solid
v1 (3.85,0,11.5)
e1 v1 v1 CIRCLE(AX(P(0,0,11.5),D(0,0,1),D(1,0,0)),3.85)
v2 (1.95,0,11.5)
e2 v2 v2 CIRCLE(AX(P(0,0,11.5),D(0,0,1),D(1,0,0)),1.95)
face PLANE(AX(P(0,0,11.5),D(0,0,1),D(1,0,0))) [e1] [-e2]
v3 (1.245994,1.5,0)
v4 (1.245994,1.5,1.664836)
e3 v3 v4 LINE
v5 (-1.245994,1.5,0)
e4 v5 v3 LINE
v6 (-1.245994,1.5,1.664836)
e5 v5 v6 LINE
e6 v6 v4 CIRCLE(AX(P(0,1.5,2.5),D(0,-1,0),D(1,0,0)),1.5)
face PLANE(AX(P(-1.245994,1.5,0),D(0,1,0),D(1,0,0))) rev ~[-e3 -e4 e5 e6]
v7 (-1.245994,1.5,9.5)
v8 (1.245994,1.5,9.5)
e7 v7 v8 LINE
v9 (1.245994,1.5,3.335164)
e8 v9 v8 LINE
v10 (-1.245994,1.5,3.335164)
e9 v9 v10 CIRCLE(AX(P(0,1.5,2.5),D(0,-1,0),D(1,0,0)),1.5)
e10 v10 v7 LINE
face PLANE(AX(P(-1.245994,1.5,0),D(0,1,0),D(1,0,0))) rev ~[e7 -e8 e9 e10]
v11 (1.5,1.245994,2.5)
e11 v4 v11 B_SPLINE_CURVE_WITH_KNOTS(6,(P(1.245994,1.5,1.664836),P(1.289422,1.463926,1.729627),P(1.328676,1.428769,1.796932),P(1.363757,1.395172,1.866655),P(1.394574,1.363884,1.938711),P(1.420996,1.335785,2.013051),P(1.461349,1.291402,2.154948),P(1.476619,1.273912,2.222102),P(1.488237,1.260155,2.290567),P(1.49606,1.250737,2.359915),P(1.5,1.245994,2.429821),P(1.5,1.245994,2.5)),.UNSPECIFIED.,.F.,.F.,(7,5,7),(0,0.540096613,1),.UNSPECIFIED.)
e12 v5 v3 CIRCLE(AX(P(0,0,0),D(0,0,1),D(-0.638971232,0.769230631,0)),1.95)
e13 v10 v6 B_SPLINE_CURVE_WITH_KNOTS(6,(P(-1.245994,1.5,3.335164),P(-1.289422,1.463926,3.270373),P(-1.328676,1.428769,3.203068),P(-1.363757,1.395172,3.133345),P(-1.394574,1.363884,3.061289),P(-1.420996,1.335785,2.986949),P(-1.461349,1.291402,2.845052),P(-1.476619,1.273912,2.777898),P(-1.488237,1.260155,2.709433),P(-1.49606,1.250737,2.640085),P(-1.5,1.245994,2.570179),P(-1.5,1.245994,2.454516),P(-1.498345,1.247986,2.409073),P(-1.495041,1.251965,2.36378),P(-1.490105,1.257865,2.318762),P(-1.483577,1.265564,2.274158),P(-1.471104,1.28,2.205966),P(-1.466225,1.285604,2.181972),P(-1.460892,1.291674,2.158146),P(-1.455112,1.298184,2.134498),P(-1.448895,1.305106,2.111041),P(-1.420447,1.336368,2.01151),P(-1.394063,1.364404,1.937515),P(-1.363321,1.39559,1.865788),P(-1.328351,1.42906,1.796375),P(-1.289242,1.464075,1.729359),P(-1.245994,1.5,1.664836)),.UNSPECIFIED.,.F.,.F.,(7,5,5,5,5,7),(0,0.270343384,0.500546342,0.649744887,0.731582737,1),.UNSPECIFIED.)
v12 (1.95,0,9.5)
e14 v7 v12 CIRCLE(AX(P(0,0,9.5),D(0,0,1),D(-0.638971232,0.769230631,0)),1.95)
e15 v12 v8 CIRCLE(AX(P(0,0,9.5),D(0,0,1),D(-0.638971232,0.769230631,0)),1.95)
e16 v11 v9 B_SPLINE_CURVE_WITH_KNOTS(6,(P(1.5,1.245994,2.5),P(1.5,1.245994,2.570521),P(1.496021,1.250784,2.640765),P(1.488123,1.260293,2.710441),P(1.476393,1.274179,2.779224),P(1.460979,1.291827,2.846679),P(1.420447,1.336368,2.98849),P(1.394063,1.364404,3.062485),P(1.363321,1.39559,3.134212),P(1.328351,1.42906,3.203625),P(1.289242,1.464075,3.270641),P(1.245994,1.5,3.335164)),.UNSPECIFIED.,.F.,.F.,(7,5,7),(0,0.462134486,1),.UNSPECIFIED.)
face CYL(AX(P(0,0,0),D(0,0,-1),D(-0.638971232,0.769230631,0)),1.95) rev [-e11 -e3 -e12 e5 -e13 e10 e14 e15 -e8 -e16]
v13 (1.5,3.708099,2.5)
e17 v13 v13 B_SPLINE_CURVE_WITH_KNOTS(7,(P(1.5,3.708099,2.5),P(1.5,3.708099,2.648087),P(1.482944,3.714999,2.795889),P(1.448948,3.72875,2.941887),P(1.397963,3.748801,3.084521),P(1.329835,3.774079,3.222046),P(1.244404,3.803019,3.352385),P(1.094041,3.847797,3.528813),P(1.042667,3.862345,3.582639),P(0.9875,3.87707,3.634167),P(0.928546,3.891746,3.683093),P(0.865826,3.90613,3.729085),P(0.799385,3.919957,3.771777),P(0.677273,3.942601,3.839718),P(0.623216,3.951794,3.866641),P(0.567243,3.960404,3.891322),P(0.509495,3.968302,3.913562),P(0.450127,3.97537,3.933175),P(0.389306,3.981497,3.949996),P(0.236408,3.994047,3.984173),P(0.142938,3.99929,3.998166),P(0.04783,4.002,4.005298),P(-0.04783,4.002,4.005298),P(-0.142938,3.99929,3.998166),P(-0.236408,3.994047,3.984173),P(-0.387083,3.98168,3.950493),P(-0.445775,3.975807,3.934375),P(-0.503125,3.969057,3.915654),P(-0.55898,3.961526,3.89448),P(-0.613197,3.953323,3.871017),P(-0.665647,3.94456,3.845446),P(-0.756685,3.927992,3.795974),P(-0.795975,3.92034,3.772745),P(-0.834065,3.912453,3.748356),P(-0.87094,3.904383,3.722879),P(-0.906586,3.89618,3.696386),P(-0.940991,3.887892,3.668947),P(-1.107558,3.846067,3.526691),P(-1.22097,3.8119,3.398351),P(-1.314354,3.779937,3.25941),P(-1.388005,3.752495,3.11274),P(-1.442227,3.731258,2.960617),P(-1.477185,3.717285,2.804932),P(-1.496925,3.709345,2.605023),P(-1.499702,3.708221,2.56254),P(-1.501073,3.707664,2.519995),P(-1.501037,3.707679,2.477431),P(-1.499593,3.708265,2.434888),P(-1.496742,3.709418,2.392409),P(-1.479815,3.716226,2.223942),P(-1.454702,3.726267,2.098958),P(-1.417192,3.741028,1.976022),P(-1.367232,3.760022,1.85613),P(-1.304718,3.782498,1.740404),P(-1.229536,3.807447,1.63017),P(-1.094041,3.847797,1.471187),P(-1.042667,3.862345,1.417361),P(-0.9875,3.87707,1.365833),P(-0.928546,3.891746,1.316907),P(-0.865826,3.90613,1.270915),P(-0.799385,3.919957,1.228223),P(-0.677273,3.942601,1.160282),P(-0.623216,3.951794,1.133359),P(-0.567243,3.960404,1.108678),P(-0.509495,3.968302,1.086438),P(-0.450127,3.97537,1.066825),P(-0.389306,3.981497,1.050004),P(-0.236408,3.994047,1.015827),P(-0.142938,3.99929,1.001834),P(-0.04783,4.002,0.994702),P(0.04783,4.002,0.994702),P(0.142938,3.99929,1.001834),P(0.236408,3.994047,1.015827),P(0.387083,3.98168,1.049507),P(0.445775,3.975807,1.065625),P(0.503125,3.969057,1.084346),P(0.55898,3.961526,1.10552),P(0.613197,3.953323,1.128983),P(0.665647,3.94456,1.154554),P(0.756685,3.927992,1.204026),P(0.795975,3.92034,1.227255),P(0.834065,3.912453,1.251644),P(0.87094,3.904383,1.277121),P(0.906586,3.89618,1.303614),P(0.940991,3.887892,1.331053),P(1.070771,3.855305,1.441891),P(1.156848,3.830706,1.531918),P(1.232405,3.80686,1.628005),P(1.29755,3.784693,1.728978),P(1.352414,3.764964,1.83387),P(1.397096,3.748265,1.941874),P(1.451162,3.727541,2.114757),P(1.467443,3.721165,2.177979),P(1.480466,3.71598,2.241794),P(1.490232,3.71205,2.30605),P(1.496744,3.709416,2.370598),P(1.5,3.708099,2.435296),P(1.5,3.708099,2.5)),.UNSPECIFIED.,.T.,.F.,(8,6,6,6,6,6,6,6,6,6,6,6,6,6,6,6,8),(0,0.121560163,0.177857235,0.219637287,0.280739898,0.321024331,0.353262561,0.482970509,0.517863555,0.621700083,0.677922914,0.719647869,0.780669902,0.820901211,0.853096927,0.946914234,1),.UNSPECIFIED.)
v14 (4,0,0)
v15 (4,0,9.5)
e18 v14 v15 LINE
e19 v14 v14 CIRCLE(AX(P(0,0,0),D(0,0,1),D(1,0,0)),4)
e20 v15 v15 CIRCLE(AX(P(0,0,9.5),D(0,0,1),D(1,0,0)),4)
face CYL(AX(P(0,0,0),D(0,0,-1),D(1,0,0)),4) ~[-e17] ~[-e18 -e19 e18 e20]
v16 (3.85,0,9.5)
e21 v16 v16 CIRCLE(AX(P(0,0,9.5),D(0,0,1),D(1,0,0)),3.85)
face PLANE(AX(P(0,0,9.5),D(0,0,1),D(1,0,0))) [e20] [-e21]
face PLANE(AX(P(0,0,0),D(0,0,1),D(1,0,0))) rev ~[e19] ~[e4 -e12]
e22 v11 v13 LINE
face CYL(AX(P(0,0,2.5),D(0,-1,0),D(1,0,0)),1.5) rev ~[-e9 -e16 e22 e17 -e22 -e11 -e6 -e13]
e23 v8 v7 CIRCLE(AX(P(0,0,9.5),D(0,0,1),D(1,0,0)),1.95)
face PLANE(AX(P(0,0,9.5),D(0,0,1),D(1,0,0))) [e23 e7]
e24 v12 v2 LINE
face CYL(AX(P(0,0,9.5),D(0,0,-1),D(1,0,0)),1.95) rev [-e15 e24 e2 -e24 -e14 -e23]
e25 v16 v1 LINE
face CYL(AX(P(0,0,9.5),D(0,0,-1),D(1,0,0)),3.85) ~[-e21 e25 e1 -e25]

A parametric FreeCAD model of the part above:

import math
import FreeCAD as App
import Part
import Sketcher

V = App.Vector

doc = App.newDocument("Part")
body = doc.addObject("PartDesign::Body", "Body")

# Sketch on XY plane
sketch1 = body.newObject("Sketcher::SketchObject", "Sketch")
sketch1.AttachmentSupport = (doc.getObject("XY_Plane"), [""])
sketch1.MapMode = "FlatFace"
sketch1.addGeometry([
    Part.Circle(V(0, 0, 0), V(0, 0, 1), 4),
    Part.ArcOfCircle(Part.Circle(V(0, 0, 0), V(0, 0, 1), 2), math.radians(130), math.radians(410)),
    Part.LineSegment(V(-1.2, 1.5, 0), V(1.2, 1.5, 0)),
], False)
sketch1.addConstraint([
    Sketcher.Constraint("Coincident", 1, 1, 2, 1),
    Sketcher.Constraint("Coincident", 2, 2, 1, 2),
    Sketcher.Constraint("Horizontal", 2),
    Sketcher.Constraint("Coincident", 0, 3, -1, 1),
    Sketcher.Constraint("Coincident", 1, 3, -1, 1),
    Sketcher.Constraint("Diameter", 0, 8.0),
    Sketcher.Constraint("Radius", 1, 1.95),
    Sketcher.Constraint("DistanceY", -1, 1, 1, 1, 1.5),
])
pad1 = body.newObject("PartDesign::Pad", "Pad")
pad1.Profile = sketch1
pad1.Length = 9.5

# Sketch on XY plane
sketch2 = body.newObject("Sketcher::SketchObject", "Sketch001")
sketch2.AttachmentSupport = (doc.getObject("XY_Plane"), [""])
sketch2.MapMode = "FlatFace"
sketch2.AttachmentOffset = App.Placement(V(0, 0, 9.5), App.Rotation())
sketch2.addGeometry([
    Part.Circle(V(0, 0, 0), V(0, 0, 1), 3.9),
    Part.Circle(V(0, 0, 0), V(0, 0, 1), 1.9),
], False)
sketch2.addConstraint([
    Sketcher.Constraint("Coincident", 0, 3, -1, 1),
    Sketcher.Constraint("Coincident", 1, 3, -1, 1),
    Sketcher.Constraint("Diameter", 0, 7.7),
    Sketcher.Constraint("Diameter", 1, 3.9),
])
pad2 = body.newObject("PartDesign::Pad", "Pad001")
pad2.Profile = sketch2
pad2.Length = 2

# Sketch on XZ plane
sketch3 = body.newObject("Sketcher::SketchObject", "Sketch002")
sketch3.AttachmentSupport = (doc.getObject("XZ_Plane"), [""])
sketch3.MapMode = "FlatFace"
sketch3.addGeometry(Part.Circle(V(0, 2.5, 0), V(0, 0, 1), 1.5), False)
sketch3.addConstraint([
    Sketcher.Constraint("PointOnObject", 0, 3, -2),
    Sketcher.Constraint("Diameter", 0, 3.0),
    Sketcher.Constraint("DistanceY", -1, 1, 0, 3, 2.5),
])
pocket1 = body.newObject("PartDesign::Pocket", "Pocket")
pocket1.Profile = sketch3
pocket1.Type = "ThroughAll"

doc.recompute()
